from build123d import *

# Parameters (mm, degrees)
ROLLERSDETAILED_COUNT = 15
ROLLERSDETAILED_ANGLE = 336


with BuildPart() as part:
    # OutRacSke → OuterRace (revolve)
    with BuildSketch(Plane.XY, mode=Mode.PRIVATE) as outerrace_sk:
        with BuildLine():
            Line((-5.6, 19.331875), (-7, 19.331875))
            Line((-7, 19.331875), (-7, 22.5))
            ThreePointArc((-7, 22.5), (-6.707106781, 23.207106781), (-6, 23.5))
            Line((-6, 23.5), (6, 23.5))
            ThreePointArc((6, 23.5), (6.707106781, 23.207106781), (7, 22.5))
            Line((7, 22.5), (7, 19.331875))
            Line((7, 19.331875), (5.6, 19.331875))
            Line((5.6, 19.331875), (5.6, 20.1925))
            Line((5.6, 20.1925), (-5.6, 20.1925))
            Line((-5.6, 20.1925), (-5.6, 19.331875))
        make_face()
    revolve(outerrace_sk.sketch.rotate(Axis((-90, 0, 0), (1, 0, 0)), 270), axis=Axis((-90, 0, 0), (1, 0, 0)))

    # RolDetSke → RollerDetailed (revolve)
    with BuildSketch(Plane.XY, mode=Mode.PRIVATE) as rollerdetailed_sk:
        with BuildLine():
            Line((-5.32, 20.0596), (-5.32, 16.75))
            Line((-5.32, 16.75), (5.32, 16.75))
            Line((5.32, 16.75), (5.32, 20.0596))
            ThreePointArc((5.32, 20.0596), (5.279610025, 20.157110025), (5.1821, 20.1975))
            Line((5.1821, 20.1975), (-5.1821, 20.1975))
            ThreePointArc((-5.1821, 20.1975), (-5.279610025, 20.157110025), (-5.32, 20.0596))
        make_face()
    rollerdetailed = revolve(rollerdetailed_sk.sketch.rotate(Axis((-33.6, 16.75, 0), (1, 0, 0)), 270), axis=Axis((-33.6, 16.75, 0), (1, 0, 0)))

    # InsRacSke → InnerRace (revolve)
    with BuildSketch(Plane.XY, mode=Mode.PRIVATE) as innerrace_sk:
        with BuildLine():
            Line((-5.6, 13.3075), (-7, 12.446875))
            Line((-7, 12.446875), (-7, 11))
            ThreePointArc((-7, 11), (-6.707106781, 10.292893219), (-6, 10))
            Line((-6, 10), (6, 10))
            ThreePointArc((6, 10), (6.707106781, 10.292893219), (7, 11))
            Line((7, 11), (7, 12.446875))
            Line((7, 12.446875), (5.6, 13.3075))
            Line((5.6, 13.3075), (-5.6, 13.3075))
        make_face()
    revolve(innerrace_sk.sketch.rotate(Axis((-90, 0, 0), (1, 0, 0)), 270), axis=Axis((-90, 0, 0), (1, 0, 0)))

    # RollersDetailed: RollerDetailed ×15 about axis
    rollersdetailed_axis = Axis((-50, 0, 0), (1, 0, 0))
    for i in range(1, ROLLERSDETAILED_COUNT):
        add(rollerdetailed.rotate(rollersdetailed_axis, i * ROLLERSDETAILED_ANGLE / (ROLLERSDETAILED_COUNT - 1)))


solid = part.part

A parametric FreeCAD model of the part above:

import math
import FreeCAD as App
import Part
import Sketcher
Q = App.Units.Quantity

doc = App.newDocument("Part")
params = doc.addObject("Spreadsheet::Sheet", "Params")
for row, (alias, value) in enumerate([
    ("sketch1_radius", "1 mm"),
    ("sketch1_width", "12 mm"),
    ("sketch1_width2", "1.4 mm"),
    ("revolution_angle", "360 deg"),
    ("sketch2_width", "10.64 mm"),
    ("revolution2_angle", "360 deg"),
    ("sketch3_radius", "1 mm"),
    ("sketch3_width", "12 mm"),
    ("sketch3_width2", "11.2 mm"),
    ("revolution3_angle", "360 deg"),
], start=1):
    params.set(f"A{row}", alias)
    params.set(f"B{row}", "=" + value)
    params.setAlias(f"B{row}", alias)

body = doc.addObject("PartDesign::Body", "Body")

sketch1 = body.newObject("Sketcher::SketchObject", "Sketch")
sketch1.AttachmentSupport = (doc.getObject("XY_Plane"), [""])
sketch1.MapMode = "FlatFace"
sketch1.addGeometry([
    Part.LineSegment(App.Vector(-7, 19.3, 0), App.Vector(-5.6, 19.3, 0)),
    Part.LineSegment(App.Vector(-5.6, 19.3, 0), App.Vector(-5.6, 20.2, 0)),
    Part.LineSegment(App.Vector(-5.6, 20.2, 0), App.Vector(5.6, 20.2, 0)),
    Part.LineSegment(App.Vector(5.6, 20.2, 0), App.Vector(5.6, 19.3, 0)),
    Part.LineSegment(App.Vector(5.6, 19.3, 0), App.Vector(7, 19.3, 0)),
    Part.LineSegment(App.Vector(7, 19.3, 0), App.Vector(7, 22.5, 0)),
    Part.ArcOfCircle(Part.Circle(App.Vector(6, 22.5, 0), App.Vector(0, 0, 1), 1), math.radians(0), math.radians(90)),
    Part.LineSegment(App.Vector(6, 23.5, 0), App.Vector(-6, 23.5, 0)),
    Part.ArcOfCircle(Part.Circle(App.Vector(-6, 22.5, 0), App.Vector(0, 0, 1), 1), math.radians(90), math.radians(180)),
    Part.LineSegment(App.Vector(-7, 22.5, 0), App.Vector(-7, 19.3, 0)),
], False)
sketch1.addConstraint([
    Sketcher.Constraint("Coincident", 0, 2, 1, 1),
    Sketcher.Constraint("Coincident", 1, 2, 2, 1),
    Sketcher.Constraint("Coincident", 2, 2, 3, 1),
    Sketcher.Constraint("Coincident", 3, 2, 4, 1),
    Sketcher.Constraint("Coincident", 4, 2, 5, 1),
    Sketcher.Constraint("Tangent", 5, 2, 6, 1),
    Sketcher.Constraint("Tangent", 6, 2, 7, 1),
    Sketcher.Constraint("Tangent", 7, 2, 8, 1),
    Sketcher.Constraint("Tangent", 8, 2, 9, 1),
    Sketcher.Constraint("Coincident", 9, 2, 0, 1),
    Sketcher.Constraint("Horizontal", 0),
    Sketcher.Constraint("Vertical", 1),
    Sketcher.Constraint("Horizontal", 2),
    Sketcher.Constraint("Vertical", 3),
    Sketcher.Constraint("Horizontal", 4),
    Sketcher.Constraint("Vertical", 5),
    Sketcher.Constraint("Horizontal", 7),
    Sketcher.Constraint("Vertical", 9),
    Sketcher.Constraint("Equal", 6, 8),
    Sketcher.Constraint("Symmetric", 0, 2, 3, 2, -2),
    Sketcher.Constraint("Equal", 0, 4),
    Sketcher.Constraint("Radius", 6, Q("1 mm")),
    Sketcher.Constraint("DistanceX", 7, 2, 7, 1, Q("12 mm")),
    Sketcher.Constraint("DistanceX", 0, 1, 0, 2, Q("1.4 mm")),
    Sketcher.Constraint("DistanceY", -1, 1, 6, 3, Q("22.5 mm")),
    Sketcher.Constraint("DistanceY", -1, 1, 1, 2, Q("20.1925 mm")),
    Sketcher.Constraint("DistanceY", 1, 1, 1, 2, Q("0.860625 mm")),
])
sketch1.setExpression("Constraints[21]", "Params.sketch1_radius")
sketch1.setExpression("Constraints[22]", "Params.sketch1_width")
sketch1.setExpression("Constraints[23]", "Params.sketch1_width2")
revolution = body.newObject("PartDesign::Revolution", "Revolution")
revolution.Profile = sketch1
revolution.ReferenceAxis = (sketch1, ["H_Axis"])
revolution.setExpression("Angle", "Params.revolution_angle")

sketch2 = body.newObject("Sketcher::SketchObject", "Sketch001")
sketch2.AttachmentSupport = (doc.getObject("XY_Plane"), [""])
sketch2.MapMode = "FlatFace"
sketch2.addGeometry([
    Part.LineSegment(App.Vector(-5.32, 20.06, 0), App.Vector(-5.32, 16.75, 0)),
    Part.LineSegment(App.Vector(-5.32, 16.75, 0), App.Vector(5.32, 16.75, 0)),
    Part.LineSegment(App.Vector(5.32, 16.75, 0), App.Vector(5.32, 20.06, 0)),
    Part.ArcOfCircle(Part.Circle(App.Vector(5.18, 20.06, 0), App.Vector(0, 0, 1), 0.14), math.radians(0), math.radians(90)),
    Part.LineSegment(App.Vector(5.18, 20.2, 0), App.Vector(-5.18, 20.2, 0)),
    Part.ArcOfCircle(Part.Circle(App.Vector(-5.18, 20.06, 0), App.Vector(0, 0, 1), 0.14), math.radians(90), math.radians(180)),
], False)
sketch2.addGeometry(Part.LineSegment(App.Vector(-5.32, 16.75, 0), App.Vector(5.32, 16.75, 0)), True)
sketch2.addConstraint([
    Sketcher.Constraint("Coincident", 0, 2, 1, 1),
    Sketcher.Constraint("Coincident", 1, 2, 2, 1),
    Sketcher.Constraint("Tangent", 2, 2, 3, 1),
    Sketcher.Constraint("Tangent", 3, 2, 4, 1),
    Sketcher.Constraint("Tangent", 4, 2, 5, 1),
    Sketcher.Constraint("Tangent", 5, 2, 0, 1),
    Sketcher.Constraint("Vertical", 0),
    Sketcher.Constraint("Horizontal", 1),
    Sketcher.Constraint("Vertical", 2),
    Sketcher.Constraint("Horizontal", 4),
    Sketcher.Constraint("Horizontal", 6),
    Sketcher.Constraint("Coincident", 6, 1, 0, 2),
    Sketcher.Constraint("Equal", 3, 5),
    Sketcher.Constraint("Vertical", 2, 2, 6, 2),
    Sketcher.Constraint("DistanceX", 1, 1, 1, 2, Q("10.64 mm")),
    Sketcher.Constraint("Radius", 3, Q("0.1379 mm")),
    Sketcher.Constraint("DistanceX", 0, 2, -1, 1, Q("5.32 mm")),
    Sketcher.Constraint("DistanceY", -1, 1, 0, 2, Q("16.75 mm")),
    Sketcher.Constraint("DistanceY", 0, 2, 0, 1, Q("3.3096 mm")),
])
sketch2.setExpression("Constraints[14]", "Params.sketch2_width")
revolution2 = body.newObject("PartDesign::Revolution", "Revolution001")
revolution2.Profile = sketch2
revolution2.ReferenceAxis = (sketch2, ["Axis0"])
revolution2.setExpression("Angle", "Params.revolution2_angle")

sketch3 = body.newObject("Sketcher::SketchObject", "Sketch002")
sketch3.AttachmentSupport = (doc.getObject("XY_Plane"), [""])
sketch3.MapMode = "FlatFace"
sketch3.addGeometry([
    Part.LineSegment(App.Vector(-5.6, 13.3, 0), App.Vector(-7, 12.4, 0)),
    Part.LineSegment(App.Vector(-7, 12.4, 0), App.Vector(-7, 11, 0)),
    Part.ArcOfCircle(Part.Circle(App.Vector(-6, 11, 0), App.Vector(0, 0, 1), 1), math.radians(-180), math.radians(-90)),
    Part.LineSegment(App.Vector(-6, 10, 0), App.Vector(6, 10, 0)),
    Part.ArcOfCircle(Part.Circle(App.Vector(6, 11, 0), App.Vector(0, 0, 1), 1), math.radians(-90), math.radians(0)),
    Part.LineSegment(App.Vector(7, 11, 0), App.Vector(7, 12.4, 0)),
    Part.LineSegment(App.Vector(7, 12.4, 0), App.Vector(5.6, 13.3, 0)),
    Part.LineSegment(App.Vector(5.6, 13.3, 0), App.Vector(-5.6, 13.3, 0)),
], False)
sketch3.addConstraint([
    Sketcher.Constraint("Coincident", 0, 2, 1, 1),
    Sketcher.Constraint("Tangent", 1, 2, 2, 1),
    Sketcher.Constraint("Tangent", 2, 2, 3, 1),
    Sketcher.Constraint("Tangent", 3, 2, 4, 1),
    Sketcher.Constraint("Tangent", 4, 2, 5, 1),
    Sketcher.Constraint("Coincident", 5, 2, 6, 1),
    Sketcher.Constraint("Coincident", 6, 2, 7, 1),
    Sketcher.Constraint("Coincident", 7, 2, 0, 1),
    Sketcher.Constraint("Vertical", 1),
    Sketcher.Constraint("Horizontal", 3),
    Sketcher.Constraint("Vertical", 5),
    Sketcher.Constraint("Horizontal", 7),
    Sketcher.Constraint("Equal", 2, 4),
    Sketcher.Constraint("Symmetric", 0, 2, 5, 2, -2),
    Sketcher.Constraint("Equal", 0, 6),
    Sketcher.Constraint("Radius", 2, Q("1 mm")),
    Sketcher.Constraint("DistanceX", 3, 1, 3, 2, Q("12 mm")),
    Sketcher.Constraint("DistanceX", 7, 2, 7, 1, Q("11.2 mm")),
    Sketcher.Constraint("DistanceY", -1, 1, 2, 3, Q("11 mm")),
    Sketcher.Constraint("DistanceY", -1, 1, 6, 2, Q("13.3075 mm")),
    Sketcher.Constraint("DistanceY", 1, 2, 1, 1, Q("1.446875 mm")),
])
sketch3.setExpression("Constraints[15]", "Params.sketch3_radius")
sketch3.setExpression("Constraints[16]", "Params.sketch3_width")
sketch3.setExpression("Constraints[17]", "Params.sketch3_width2")
revolution3 = body.newObject("PartDesign::Revolution", "Revolution002")
revolution3.Profile = sketch3
revolution3.ReferenceAxis = (sketch3, ["H_Axis"])
revolution3.setExpression("Angle", "Params.revolution3_angle")
doc.recompute()

polarpattern = body.newObject("PartDesign::PolarPattern", "PolarPattern")
polarpattern.Originals = [revolution2]
polarpattern.Axis = (doc.getObject("X_Axis"), [""])
polarpattern.Angle = 360
polarpattern.Occurrences = 15
body.Tip = polarpattern

doc.recompute()
